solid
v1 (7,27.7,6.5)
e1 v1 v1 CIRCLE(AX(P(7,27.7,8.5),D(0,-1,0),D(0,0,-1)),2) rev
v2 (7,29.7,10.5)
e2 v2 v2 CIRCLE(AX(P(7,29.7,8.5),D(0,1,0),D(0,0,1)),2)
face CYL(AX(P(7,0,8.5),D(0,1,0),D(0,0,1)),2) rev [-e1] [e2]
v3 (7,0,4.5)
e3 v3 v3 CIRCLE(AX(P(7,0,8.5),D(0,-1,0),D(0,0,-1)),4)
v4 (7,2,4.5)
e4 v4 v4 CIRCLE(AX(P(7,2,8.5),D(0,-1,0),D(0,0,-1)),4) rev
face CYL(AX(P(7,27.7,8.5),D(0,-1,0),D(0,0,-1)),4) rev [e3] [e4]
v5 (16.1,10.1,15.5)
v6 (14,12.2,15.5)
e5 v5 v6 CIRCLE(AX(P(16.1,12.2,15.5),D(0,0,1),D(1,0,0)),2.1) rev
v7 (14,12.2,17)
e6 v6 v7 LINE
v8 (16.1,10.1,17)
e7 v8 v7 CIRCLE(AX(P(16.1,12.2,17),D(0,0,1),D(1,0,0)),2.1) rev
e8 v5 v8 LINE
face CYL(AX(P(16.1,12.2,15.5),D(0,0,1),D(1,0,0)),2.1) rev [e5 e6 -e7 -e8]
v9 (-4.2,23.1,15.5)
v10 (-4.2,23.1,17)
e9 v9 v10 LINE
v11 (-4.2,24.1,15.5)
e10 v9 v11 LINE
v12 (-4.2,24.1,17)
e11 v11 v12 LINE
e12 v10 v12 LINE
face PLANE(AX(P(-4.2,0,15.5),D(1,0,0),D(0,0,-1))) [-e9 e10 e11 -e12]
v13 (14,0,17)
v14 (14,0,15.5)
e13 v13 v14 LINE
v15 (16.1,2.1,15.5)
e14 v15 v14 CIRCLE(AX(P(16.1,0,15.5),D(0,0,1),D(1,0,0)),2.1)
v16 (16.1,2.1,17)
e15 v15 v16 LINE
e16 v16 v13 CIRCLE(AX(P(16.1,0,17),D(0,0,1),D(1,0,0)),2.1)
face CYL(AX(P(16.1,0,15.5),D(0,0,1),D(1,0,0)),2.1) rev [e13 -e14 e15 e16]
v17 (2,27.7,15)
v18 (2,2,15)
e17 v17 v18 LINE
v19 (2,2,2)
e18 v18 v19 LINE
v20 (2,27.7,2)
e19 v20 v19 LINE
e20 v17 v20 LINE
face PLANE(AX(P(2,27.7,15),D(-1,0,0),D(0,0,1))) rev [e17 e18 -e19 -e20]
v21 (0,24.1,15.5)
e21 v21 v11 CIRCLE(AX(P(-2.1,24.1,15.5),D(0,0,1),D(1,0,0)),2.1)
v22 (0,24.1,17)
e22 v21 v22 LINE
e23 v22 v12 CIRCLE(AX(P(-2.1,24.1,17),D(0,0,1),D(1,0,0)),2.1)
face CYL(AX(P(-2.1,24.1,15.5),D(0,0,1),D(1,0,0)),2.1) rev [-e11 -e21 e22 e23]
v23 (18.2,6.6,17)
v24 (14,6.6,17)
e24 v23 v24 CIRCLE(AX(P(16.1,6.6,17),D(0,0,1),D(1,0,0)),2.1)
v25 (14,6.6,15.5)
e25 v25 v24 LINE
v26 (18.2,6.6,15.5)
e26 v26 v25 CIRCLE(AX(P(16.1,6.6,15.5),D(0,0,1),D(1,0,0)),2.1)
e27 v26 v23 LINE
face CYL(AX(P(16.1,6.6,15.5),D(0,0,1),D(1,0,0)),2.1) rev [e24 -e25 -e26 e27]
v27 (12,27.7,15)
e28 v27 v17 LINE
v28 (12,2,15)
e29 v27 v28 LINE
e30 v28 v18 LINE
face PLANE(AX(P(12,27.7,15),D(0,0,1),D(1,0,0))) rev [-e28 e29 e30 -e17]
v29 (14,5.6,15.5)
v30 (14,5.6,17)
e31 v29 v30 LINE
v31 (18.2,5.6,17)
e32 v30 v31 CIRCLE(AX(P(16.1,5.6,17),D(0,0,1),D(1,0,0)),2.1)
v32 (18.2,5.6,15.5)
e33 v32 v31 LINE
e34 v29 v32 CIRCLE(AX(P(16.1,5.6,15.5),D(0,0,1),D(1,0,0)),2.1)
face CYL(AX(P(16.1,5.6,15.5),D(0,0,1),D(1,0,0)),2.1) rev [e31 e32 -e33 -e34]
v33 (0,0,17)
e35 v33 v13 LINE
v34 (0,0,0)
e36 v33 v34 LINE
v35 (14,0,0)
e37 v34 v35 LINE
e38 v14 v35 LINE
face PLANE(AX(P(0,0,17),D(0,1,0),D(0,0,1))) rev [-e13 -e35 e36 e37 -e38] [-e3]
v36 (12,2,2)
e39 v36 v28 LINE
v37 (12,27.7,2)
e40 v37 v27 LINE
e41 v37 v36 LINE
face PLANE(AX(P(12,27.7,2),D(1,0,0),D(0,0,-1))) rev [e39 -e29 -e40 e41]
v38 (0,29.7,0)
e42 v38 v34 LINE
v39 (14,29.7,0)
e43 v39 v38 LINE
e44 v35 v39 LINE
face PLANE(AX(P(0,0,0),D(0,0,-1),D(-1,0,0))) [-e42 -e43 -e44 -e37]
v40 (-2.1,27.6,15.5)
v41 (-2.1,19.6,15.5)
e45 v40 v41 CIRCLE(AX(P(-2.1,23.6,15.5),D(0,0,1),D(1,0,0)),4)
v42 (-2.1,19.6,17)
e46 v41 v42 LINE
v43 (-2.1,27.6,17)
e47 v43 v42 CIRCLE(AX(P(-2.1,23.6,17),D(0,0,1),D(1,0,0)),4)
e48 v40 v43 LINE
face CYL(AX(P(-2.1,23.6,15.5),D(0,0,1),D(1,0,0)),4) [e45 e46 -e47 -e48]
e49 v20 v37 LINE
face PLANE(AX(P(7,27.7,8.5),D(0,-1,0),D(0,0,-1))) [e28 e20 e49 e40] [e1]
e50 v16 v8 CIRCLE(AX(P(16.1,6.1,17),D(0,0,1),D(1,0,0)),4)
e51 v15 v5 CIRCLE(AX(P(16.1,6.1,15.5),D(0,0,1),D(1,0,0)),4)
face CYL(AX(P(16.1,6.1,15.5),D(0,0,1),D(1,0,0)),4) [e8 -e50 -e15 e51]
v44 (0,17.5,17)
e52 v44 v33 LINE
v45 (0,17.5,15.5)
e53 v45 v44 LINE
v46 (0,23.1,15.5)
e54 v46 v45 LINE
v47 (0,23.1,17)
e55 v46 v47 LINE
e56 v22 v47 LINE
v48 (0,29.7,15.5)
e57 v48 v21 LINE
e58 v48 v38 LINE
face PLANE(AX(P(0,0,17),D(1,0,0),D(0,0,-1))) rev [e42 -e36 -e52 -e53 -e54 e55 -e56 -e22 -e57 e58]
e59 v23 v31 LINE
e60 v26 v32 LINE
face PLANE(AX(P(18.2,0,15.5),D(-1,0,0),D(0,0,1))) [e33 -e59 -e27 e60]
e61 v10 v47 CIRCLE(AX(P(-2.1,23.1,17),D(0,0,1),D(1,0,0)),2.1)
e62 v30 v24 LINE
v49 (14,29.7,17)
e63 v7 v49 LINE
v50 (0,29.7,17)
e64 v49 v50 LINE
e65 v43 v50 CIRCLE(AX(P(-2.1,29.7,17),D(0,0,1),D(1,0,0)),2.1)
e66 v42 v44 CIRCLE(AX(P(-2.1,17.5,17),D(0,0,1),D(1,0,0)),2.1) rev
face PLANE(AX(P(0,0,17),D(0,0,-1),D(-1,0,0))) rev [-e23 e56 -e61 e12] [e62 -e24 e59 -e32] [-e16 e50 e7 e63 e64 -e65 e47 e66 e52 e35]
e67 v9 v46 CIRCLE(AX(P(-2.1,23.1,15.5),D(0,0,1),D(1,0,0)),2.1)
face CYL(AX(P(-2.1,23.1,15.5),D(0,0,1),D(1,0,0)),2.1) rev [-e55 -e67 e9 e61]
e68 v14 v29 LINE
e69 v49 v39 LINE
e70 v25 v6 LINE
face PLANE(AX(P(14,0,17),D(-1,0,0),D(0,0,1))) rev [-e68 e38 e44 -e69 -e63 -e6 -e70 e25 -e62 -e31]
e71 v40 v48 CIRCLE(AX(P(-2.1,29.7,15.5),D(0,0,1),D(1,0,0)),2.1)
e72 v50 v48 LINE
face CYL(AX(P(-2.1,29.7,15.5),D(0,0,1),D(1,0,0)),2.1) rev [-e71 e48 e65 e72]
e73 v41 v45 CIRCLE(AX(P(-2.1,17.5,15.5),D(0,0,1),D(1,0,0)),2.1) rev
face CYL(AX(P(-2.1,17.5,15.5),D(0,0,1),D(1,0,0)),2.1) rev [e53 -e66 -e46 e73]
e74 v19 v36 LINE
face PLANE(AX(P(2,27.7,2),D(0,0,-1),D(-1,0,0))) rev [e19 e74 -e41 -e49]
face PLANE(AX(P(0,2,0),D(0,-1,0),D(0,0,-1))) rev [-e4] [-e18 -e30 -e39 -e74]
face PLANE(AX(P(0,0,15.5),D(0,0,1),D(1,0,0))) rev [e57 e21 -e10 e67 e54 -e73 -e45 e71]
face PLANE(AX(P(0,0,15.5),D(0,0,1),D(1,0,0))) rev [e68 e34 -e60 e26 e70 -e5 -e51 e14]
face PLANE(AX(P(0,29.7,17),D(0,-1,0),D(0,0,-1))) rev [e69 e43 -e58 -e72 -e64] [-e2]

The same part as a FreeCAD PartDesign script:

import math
import FreeCAD as App
import Part
import Sketcher
Q = App.Units.Quantity

doc = App.newDocument("Part")
body = doc.addObject("PartDesign::Body", "Body")

# Sketch on XY plane
sketch1 = body.newObject("Sketcher::SketchObject", "Sketch")
sketch1.AttachmentSupport = (doc.getObject("XY_Plane"), [""])
sketch1.MapMode = "FlatFace"
sketch1.addGeometry([
    Part.LineSegment(App.Vector(0, 29.7, 0), App.Vector(0, 0, 0)),
    Part.LineSegment(App.Vector(0, 0, 0), App.Vector(14, 0, 0)),
    Part.LineSegment(App.Vector(14, 0, 0), App.Vector(14, 29.7, 0)),
    Part.LineSegment(App.Vector(14, 29.7, 0), App.Vector(0, 29.7, 0)),
], False)
sketch1.addConstraint([
    Sketcher.Constraint("Coincident", 0, 2, 1, 1),
    Sketcher.Constraint("Coincident", 1, 2, 2, 1),
    Sketcher.Constraint("Coincident", 2, 2, 3, 1),
    Sketcher.Constraint("Coincident", 3, 2, 0, 1),
    Sketcher.Constraint("Vertical", 0),
    Sketcher.Constraint("Horizontal", 1),
    Sketcher.Constraint("Vertical", 2),
    Sketcher.Constraint("Horizontal", 3),
    Sketcher.Constraint("Coincident", 0, 2, -1, 1),
    Sketcher.Constraint("DistanceX", 1, 1, 1, 2, Q("14 mm")),
    Sketcher.Constraint("DistanceY", 0, 2, 0, 1, Q("29.7 mm")),
])
pad1 = body.newObject("PartDesign::Pad", "Pad")
pad1.Profile = sketch1
pad1.Length = 17

# Sketch on XZ plane
sketch2 = body.newObject("Sketcher::SketchObject", "Sketch001")
sketch2.AttachmentSupport = (doc.getObject("XZ_Plane"), [""])
sketch2.MapMode = "FlatFace"
sketch2.AttachmentOffset = App.Placement(App.Vector(0, 0, -29.7), App.Rotation())
sketch2.addGeometry(Part.Circle(App.Vector(7, 8.5, 0), App.Vector(0, 0, 1), 2), False)
sketch2.addConstraint([
    Sketcher.Constraint("Diameter", 0, Q("4 mm")),
    Sketcher.Constraint("DistanceX", -1, 1, 0, 3, Q("7 mm")),
    Sketcher.Constraint("DistanceY", -1, 1, 0, 3, Q("8.5 mm")),
])
pocket1 = body.newObject("PartDesign::Pocket", "Pocket")
pocket1.Profile = sketch2
pocket1.Type = "ThroughAll"
pocket1.Reversed = True

# Sketch on XZ plane
sketch3 = body.newObject("Sketcher::SketchObject", "Sketch002")
sketch3.AttachmentSupport = (doc.getObject("XZ_Plane"), [""])
sketch3.MapMode = "FlatFace"
sketch3.addGeometry(Part.Circle(App.Vector(7, 8.5, 0), App.Vector(0, 0, 1), 4), False)
sketch3.addConstraint([
    Sketcher.Constraint("Diameter", 0, Q("8 mm")),
    Sketcher.Constraint("DistanceX", -1, 1, 0, 3, Q("7 mm")),
    Sketcher.Constraint("DistanceY", -1, 1, 0, 3, Q("8.5 mm")),
])
pocket2 = body.newObject("PartDesign::Pocket", "Pocket001")
pocket2.Profile = sketch3
pocket2.Length = 27.7

# Sketch on XZ plane
sketch4 = body.newObject("Sketcher::SketchObject", "Sketch003")
sketch4.AttachmentSupport = (doc.getObject("XZ_Plane"), [""])
sketch4.MapMode = "FlatFace"
sketch4.AttachmentOffset = App.Placement(App.Vector(0, 0, -2), App.Rotation())
sketch4.addGeometry([
    Part.LineSegment(App.Vector(2, 15, 0), App.Vector(2, 2, 0)),
    Part.LineSegment(App.Vector(2, 2, 0), App.Vector(12, 2, 0)),
    Part.LineSegment(App.Vector(12, 2, 0), App.Vector(12, 15, 0)),
    Part.LineSegment(App.Vector(12, 15, 0), App.Vector(2, 15, 0)),
], False)
sketch4.addConstraint([
    Sketcher.Constraint("Coincident", 0, 2, 1, 1),
    Sketcher.Constraint("Coincident", 1, 2, 2, 1),
    Sketcher.Constraint("Coincident", 2, 2, 3, 1),
    Sketcher.Constraint("Coincident", 3, 2, 0, 1),
    Sketcher.Constraint("Vertical", 0),
    Sketcher.Constraint("Horizontal", 1),
    Sketcher.Constraint("Vertical", 2),
    Sketcher.Constraint("Horizontal", 3),
    Sketcher.Constraint("DistanceX", 1, 1, 1, 2, Q("10 mm")),
    Sketcher.Constraint("DistanceY", 0, 2, 0, 1, Q("13 mm")),
    Sketcher.Constraint("DistanceX", -1, 1, 0, 2, Q("2 mm")),
    Sketcher.Constraint("DistanceY", -1, 1, 0, 2, Q("2 mm")),
])
pocket3 = body.newObject("PartDesign::Pocket", "Pocket002")
pocket3.Profile = sketch4
pocket3.Length = 25.7

# Sketch on XY plane
sketch5 = body.newObject("Sketcher::SketchObject", "Sketch004")
sketch5.AttachmentSupport = (doc.getObject("XY_Plane"), [""])
sketch5.MapMode = "FlatFace"
sketch5.AttachmentOffset = App.Placement(App.Vector(0, 0, 17), App.Rotation())
sketch5.addGeometry([
    Part.ArcOfCircle(Part.Circle(App.Vector(-2.1, 23.1, 0), App.Vector(0, 0, 1), 2.1), math.radians(180), math.radians(360)),  # 0
    Part.LineSegment(App.Vector(-4.2, 23.1, 0), App.Vector(-4.2, 24.1, 0)),  # 1
    Part.ArcOfCircle(Part.Circle(App.Vector(-2.1, 24.1, 0), App.Vector(0, 0, 1), 2.1), math.radians(0), math.radians(180)),  # 2
    Part.LineSegment(App.Vector(0, 24.1, 0), App.Vector(0, 29.7, 0)),  # 3
    Part.ArcOfCircle(Part.Circle(App.Vector(-2.1, 29.7, 0), App.Vector(0, 0, 1), 2.1), math.radians(-90), math.radians(0)),  # 4
    Part.ArcOfCircle(Part.Circle(App.Vector(-2.1, 23.6, 0), App.Vector(0, 0, 1), 4), math.radians(90), math.radians(270)),  # 5
    Part.ArcOfCircle(Part.Circle(App.Vector(-2.1, 17.5, 0), App.Vector(0, 0, 1), 2.1), math.radians(0), math.radians(90)),  # 6
    Part.LineSegment(App.Vector(0, 17.5, 0), App.Vector(0, 23.1, 0)),  # 7
    Part.LineSegment(App.Vector(14, 5.6, 0), App.Vector(14, 0, 0)),  # 8
    Part.ArcOfCircle(Part.Circle(App.Vector(16.1, 0, 0), App.Vector(0, 0, 1), 2.1), math.radians(90), math.radians(180)),  # 9
    Part.ArcOfCircle(Part.Circle(App.Vector(16.1, 6.1, 0), App.Vector(0, 0, 1), 4), math.radians(-90), math.radians(90)),  # 10
    Part.ArcOfCircle(Part.Circle(App.Vector(16.1, 12.2, 0), App.Vector(0, 0, 1), 2.1), math.radians(-180), math.radians(-90)),  # 11
    Part.LineSegment(App.Vector(14, 12.2, 0), App.Vector(14, 6.6, 0)),  # 12
    Part.ArcOfCircle(Part.Circle(App.Vector(16.1, 6.6, 0), App.Vector(0, 0, 1), 2.1), math.radians(0), math.radians(180)),  # 13
    Part.LineSegment(App.Vector(18.2, 6.6, 0), App.Vector(18.2, 5.6, 0)),  # 14
    Part.ArcOfCircle(Part.Circle(App.Vector(16.1, 5.6, 0), App.Vector(0, 0, 1), 2.1), math.radians(180), math.radians(360)),  # 15
], False)
sketch5.addConstraint([
    Sketcher.Constraint("Tangent", 0, 1, 1, 1),
    Sketcher.Constraint("Tangent", 1, 2, 2, 2),
    Sketcher.Constraint("Tangent", 2, 1, 3, 1),
    Sketcher.Constraint("Tangent", 3, 2, 4, 2),
    Sketcher.Constraint("Tangent", 4, 1, 5, 1),
    Sketcher.Constraint("Tangent", 5, 2, 6, 2),
    Sketcher.Constraint("Tangent", 6, 1, 7, 1),
    Sketcher.Constraint("Tangent", 7, 2, 0, 2),
    Sketcher.Constraint("Tangent", 8, 2, 9, 2),
    Sketcher.Constraint("Tangent", 9, 1, 10, 1),
    Sketcher.Constraint("Tangent", 10, 2, 11, 2),
    Sketcher.Constraint("Tangent", 11, 1, 12, 1),
    Sketcher.Constraint("Tangent", 12, 2, 13, 2),
    Sketcher.Constraint("Tangent", 13, 1, 14, 1),
    Sketcher.Constraint("Tangent", 14, 2, 15, 2),
    Sketcher.Constraint("Tangent", 15, 1, 8, 1),
    Sketcher.Constraint("Vertical", 1),
    Sketcher.Constraint("Vertical", 3),
    Sketcher.Constraint("Vertical", 7),
    Sketcher.Constraint("Vertical", 8),
    Sketcher.Constraint("Vertical", 12),
    Sketcher.Constraint("Vertical", 14),
    Sketcher.Constraint("Equal", 0, 2),
    Sketcher.Constraint("Equal", 2, 4),
    Sketcher.Constraint("Equal", 4, 6),
    Sketcher.Constraint("Equal", 6, 9),
    Sketcher.Constraint("Equal", 5, 10),
    Sketcher.Constraint("Equal", 9, 11),
    Sketcher.Constraint("Equal", 11, 13),
    Sketcher.Constraint("Equal", 13, 15),
    Sketcher.Constraint("PointOnObject", 9, 3, -1),
    Sketcher.Constraint("PointOnObject", 2, 1, -2),
    Sketcher.Constraint("Vertical", 4, 3, 5, 3),
    Sketcher.Constraint("Vertical", 9, 3, 10, 3),
    Sketcher.Constraint("Equal", 3, 7),
    Sketcher.Constraint("Equal", 7, 8),
    Sketcher.Constraint("Equal", 8, 12),
    Sketcher.Constraint("Radius", 5, Q("4 mm")),
    Sketcher.Constraint("Radius", 0, Q("2.1 mm")),
    Sketcher.Constraint("DistanceY", 1, 1, 1, 2, Q("1 mm")),
    Sketcher.Constraint("DistanceX", -1, 1, 8, 2, Q("14 mm")),
    Sketcher.Constraint("DistanceY", 10, 3, 0, 3, Q("17 mm")),
])
pad2 = body.newObject("PartDesign::Pad", "Pad001")
pad2.Profile = sketch5
pad2.Length = 1.5
pad2.Reversed = True

doc.recompute()
